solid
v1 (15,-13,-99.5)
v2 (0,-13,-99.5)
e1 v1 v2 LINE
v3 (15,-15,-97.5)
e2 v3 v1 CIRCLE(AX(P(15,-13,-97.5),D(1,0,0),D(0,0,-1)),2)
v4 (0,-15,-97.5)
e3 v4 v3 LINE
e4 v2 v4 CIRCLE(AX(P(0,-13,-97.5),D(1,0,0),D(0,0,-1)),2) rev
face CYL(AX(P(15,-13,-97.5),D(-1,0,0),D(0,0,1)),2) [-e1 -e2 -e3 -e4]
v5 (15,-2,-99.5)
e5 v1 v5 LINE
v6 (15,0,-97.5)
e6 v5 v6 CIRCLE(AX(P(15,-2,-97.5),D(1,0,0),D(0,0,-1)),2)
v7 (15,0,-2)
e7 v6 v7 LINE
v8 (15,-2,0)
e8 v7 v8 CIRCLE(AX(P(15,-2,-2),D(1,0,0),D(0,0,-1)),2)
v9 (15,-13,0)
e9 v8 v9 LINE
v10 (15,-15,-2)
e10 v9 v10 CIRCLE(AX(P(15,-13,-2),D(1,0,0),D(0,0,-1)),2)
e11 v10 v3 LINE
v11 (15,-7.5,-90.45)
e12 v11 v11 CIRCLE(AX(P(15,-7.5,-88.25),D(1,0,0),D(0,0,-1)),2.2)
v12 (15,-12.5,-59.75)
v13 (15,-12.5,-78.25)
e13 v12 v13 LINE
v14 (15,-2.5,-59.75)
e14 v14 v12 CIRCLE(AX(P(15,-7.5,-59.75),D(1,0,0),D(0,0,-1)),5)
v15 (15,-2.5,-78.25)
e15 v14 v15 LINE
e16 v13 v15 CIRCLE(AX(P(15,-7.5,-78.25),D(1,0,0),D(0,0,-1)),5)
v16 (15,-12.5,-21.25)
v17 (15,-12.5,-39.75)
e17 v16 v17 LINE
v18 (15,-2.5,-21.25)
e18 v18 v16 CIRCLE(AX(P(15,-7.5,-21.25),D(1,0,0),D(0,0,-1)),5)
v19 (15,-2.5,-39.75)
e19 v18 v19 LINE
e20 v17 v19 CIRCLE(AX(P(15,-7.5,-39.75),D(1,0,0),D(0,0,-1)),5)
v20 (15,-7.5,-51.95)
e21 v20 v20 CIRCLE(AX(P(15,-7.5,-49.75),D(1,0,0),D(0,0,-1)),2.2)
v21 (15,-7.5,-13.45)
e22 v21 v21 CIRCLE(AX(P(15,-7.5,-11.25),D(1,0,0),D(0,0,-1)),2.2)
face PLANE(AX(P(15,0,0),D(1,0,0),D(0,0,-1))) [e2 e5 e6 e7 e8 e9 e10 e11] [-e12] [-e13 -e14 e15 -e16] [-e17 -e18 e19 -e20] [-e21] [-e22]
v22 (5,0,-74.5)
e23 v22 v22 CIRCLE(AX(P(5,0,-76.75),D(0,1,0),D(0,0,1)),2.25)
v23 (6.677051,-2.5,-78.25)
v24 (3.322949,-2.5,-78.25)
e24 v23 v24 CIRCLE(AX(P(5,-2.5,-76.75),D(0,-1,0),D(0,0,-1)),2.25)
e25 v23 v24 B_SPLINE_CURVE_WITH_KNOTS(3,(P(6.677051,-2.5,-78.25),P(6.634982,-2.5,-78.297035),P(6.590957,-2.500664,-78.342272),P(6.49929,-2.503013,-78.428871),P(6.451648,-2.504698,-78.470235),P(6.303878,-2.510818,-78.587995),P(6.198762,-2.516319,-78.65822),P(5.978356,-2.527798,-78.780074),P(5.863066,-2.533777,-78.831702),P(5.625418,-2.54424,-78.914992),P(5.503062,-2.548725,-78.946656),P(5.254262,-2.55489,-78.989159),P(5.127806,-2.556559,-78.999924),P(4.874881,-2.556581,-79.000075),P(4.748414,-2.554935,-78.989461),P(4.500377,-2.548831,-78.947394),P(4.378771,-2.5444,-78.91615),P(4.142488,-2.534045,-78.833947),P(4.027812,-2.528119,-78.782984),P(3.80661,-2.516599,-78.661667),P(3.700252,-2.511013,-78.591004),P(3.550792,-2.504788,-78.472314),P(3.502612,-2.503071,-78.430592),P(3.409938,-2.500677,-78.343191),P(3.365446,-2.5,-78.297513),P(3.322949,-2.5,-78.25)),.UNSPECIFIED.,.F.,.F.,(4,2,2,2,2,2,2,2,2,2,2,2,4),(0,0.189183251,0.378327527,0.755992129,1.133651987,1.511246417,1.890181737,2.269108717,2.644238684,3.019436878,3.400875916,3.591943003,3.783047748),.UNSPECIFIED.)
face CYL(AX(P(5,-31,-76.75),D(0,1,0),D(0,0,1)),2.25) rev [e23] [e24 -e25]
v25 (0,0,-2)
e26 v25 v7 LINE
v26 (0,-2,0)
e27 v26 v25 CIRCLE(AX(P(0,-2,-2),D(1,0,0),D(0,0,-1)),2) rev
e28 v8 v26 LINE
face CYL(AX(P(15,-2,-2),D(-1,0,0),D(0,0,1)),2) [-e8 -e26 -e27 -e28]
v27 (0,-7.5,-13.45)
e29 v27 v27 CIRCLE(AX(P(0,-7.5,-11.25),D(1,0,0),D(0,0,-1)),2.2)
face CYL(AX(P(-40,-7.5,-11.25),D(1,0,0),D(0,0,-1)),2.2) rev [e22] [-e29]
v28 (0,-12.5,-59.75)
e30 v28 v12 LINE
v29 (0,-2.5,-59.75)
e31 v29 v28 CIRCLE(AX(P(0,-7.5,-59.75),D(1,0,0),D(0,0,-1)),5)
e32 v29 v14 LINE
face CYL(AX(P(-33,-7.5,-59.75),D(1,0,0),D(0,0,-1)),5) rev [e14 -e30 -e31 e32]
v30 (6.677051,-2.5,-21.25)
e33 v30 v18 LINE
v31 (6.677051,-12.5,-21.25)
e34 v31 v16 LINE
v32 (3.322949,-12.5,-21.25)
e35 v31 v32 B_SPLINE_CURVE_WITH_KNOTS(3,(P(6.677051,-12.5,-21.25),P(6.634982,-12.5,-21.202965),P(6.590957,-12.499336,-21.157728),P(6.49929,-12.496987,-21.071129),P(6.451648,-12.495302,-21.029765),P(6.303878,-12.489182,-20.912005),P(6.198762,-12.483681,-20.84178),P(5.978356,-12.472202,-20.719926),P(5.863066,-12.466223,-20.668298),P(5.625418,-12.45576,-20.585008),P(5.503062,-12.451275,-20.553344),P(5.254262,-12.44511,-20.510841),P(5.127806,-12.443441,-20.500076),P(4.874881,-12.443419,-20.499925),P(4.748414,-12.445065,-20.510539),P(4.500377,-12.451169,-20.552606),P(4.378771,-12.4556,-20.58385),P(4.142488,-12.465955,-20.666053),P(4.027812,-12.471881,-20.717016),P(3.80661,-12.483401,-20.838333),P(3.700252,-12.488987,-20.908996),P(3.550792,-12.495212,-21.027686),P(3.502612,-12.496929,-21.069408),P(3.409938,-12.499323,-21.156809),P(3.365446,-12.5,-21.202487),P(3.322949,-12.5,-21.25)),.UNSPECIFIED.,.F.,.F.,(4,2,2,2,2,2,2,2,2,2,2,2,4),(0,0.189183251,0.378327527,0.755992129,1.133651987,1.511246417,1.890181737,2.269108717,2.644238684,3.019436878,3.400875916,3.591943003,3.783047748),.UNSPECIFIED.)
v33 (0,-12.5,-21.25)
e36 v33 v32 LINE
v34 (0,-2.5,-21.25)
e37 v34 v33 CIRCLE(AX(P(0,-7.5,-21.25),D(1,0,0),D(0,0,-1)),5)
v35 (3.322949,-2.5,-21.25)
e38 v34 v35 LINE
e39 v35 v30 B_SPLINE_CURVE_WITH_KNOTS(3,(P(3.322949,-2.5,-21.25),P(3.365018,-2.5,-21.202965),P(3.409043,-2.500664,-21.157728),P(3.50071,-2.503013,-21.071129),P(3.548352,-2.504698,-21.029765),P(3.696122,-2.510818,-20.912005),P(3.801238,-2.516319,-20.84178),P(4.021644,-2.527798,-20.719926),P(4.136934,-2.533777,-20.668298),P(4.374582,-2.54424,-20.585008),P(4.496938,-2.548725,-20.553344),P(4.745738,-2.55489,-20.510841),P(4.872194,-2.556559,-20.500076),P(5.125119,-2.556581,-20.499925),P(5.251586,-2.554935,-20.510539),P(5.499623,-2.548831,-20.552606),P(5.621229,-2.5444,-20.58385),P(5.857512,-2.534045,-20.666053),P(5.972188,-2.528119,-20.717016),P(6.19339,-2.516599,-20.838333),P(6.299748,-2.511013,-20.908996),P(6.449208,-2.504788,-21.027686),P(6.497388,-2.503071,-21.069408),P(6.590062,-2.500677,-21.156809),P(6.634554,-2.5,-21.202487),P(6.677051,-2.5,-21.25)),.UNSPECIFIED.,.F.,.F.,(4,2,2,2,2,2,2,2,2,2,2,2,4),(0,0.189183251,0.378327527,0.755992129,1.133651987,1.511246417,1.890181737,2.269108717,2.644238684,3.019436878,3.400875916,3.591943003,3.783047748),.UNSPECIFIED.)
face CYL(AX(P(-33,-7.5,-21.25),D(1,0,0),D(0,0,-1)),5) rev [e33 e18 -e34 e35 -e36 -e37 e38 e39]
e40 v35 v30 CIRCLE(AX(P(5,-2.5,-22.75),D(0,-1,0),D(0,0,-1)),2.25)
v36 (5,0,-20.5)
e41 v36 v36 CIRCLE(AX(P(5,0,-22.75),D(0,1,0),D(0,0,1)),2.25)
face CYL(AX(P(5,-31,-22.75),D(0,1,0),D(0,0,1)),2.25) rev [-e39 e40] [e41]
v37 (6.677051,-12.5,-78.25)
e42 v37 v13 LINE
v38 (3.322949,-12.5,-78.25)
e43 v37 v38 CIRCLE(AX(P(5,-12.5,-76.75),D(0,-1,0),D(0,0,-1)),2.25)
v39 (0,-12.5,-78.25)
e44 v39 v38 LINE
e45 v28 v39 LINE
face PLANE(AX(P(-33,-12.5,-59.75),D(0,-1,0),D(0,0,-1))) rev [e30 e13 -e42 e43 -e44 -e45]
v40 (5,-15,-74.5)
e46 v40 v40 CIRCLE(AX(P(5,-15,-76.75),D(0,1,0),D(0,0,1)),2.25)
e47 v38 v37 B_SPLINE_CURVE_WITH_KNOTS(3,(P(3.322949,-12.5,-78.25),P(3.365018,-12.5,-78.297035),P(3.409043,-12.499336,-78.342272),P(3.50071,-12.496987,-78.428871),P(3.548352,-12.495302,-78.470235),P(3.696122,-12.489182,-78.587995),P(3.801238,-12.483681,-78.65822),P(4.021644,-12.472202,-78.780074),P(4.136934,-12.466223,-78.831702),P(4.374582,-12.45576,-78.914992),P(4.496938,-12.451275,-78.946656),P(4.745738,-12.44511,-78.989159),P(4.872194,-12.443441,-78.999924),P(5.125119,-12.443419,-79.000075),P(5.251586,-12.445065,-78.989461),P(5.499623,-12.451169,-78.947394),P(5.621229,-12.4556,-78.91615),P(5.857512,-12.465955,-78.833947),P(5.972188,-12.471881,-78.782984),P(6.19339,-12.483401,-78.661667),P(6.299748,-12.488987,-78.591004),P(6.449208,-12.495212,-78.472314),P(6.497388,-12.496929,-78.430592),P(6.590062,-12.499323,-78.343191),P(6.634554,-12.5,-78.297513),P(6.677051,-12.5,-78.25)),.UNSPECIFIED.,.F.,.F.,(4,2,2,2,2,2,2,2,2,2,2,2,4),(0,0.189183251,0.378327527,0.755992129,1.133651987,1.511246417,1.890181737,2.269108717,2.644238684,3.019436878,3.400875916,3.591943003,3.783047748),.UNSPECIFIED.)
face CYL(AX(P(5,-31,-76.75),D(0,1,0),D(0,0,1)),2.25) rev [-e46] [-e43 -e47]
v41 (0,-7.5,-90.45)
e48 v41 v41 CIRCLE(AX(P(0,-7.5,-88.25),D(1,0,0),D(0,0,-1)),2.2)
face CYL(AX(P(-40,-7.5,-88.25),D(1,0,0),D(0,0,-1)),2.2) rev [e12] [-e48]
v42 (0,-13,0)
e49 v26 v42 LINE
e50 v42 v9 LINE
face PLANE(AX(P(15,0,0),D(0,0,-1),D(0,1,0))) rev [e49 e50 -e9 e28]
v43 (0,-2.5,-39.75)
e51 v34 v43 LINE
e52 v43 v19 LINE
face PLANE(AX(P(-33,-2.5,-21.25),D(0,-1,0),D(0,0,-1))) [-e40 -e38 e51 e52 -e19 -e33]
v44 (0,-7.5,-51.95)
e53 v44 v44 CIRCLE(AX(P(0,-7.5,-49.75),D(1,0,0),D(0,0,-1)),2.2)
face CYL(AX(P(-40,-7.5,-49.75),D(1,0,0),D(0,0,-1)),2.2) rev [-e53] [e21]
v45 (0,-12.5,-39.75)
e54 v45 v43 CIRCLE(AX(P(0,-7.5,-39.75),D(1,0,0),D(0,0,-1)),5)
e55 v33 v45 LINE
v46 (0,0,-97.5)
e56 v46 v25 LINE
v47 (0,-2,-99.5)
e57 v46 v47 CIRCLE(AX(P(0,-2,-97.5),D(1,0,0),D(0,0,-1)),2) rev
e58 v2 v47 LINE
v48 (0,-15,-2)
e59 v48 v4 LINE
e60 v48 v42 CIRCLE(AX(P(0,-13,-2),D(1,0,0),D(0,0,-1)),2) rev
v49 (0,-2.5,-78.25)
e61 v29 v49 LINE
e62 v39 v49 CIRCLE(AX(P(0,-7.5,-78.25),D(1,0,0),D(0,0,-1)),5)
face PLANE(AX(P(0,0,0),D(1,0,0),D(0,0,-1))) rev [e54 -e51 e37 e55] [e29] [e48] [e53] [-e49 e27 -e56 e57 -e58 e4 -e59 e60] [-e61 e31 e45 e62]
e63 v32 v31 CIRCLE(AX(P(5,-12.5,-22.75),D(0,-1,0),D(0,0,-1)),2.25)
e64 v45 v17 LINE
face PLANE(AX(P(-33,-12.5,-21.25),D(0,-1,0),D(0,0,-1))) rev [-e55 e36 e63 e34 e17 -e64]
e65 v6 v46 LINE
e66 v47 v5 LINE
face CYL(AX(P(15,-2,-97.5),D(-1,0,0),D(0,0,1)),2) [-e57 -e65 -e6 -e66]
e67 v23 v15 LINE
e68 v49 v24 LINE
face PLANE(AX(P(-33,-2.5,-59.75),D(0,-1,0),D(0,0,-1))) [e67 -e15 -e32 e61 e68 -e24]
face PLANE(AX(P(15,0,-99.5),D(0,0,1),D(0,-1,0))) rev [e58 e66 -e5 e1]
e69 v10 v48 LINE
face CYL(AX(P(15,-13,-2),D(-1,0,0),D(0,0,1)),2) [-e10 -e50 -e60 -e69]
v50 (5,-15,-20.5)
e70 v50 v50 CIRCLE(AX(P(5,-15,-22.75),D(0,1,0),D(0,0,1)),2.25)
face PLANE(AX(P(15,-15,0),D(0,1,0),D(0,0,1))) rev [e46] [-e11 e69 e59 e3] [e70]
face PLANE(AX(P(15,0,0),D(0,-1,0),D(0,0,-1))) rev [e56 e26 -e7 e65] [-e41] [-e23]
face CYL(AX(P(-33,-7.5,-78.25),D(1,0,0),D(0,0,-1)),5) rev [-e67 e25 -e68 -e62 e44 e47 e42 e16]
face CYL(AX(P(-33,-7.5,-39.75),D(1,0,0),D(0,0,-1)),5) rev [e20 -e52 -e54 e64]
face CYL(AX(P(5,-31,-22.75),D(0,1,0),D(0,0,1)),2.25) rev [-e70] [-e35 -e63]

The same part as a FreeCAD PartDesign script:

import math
import FreeCAD as App
import Part
import Sketcher
from FreeCAD import Vector
Q = App.Units.Quantity


def edges_at(feature, points):
    """Names of the edges that pass closest to the given points."""
    edges = feature.Shape.Edges
    near = lambda p: min(range(len(edges)), key=lambda i: edges[i].distToShape(Part.Vertex(*p))[0])
    return sorted({f"Edge{near(p) + 1}" for p in points})

doc = App.newDocument("Part")
params = doc.addObject("Spreadsheet::Sheet", "Params")
for row, (alias, value) in enumerate([
    ("sketch1_width", "15 mm"),
    ("sketch1_height", "99.5 mm"),
    ("pad1_length", "15 mm"),
    ("sketch2_diameter", "4.4 mm"),
    ("pocket1_length", "55 mm"),
    ("sketch3_radius", "5 mm"),
    ("sketch3_height", "18.5 mm"),
    ("pocket2_length", "48 mm"),
    ("fillet_radius", "2 mm"),
    ("sketch4_radius", "2.25 mm"),
    ("pocket3_length", "31 mm"),
], start=1):
    params.set(f"A{row}", alias)
    params.set(f"B{row}", "=" + value)
    params.setAlias(f"B{row}", alias)

body = doc.addObject("PartDesign::Body", "Body")

# Sketch on YZ plane
sketch1 = doc.addObject("Sketcher::SketchObject", "Sketch")
body.addObject(sketch1)
sketch1.AttachmentSupport = (doc.YZ_Plane, [""])
sketch1.MapMode = "FlatFace"
sketch1.addGeometry(Part.LineSegment(Vector(0, 0, 0), Vector(-15, 0, 0)), False)
sketch1.addGeometry(Part.LineSegment(Vector(-15, 0, 0), Vector(-15, -100, 0)), False)
sketch1.addGeometry(Part.LineSegment(Vector(-15, -100, 0), Vector(0, -100, 0)), False)
sketch1.addGeometry(Part.LineSegment(Vector(0, -100, 0), Vector(0, 0, 0)), False)
sketch1.addConstraint(Sketcher.Constraint("Coincident", 0, 2, 1, 1))
sketch1.addConstraint(Sketcher.Constraint("Coincident", 1, 2, 2, 1))
sketch1.addConstraint(Sketcher.Constraint("Coincident", 2, 2, 3, 1))
sketch1.addConstraint(Sketcher.Constraint("Coincident", 3, 2, 0, 1))
sketch1.addConstraint(Sketcher.Constraint("Horizontal", 0))
sketch1.addConstraint(Sketcher.Constraint("Vertical", 1))
sketch1.addConstraint(Sketcher.Constraint("Horizontal", 2))
sketch1.addConstraint(Sketcher.Constraint("Vertical", 3))
sketch1.addConstraint(Sketcher.Constraint("Coincident", 3, 2, -1, 1))
sketch1.addConstraint(Sketcher.Constraint("DistanceX", 0, 2, 0, 1, Q("15 mm")))
sketch1.addConstraint(Sketcher.Constraint("DistanceY", 1, 2, 1, 1, Q("99.5 mm")))
sketch1.setExpression("Constraints[9]", "Params.sketch1_width")
sketch1.setExpression("Constraints[10]", "Params.sketch1_height")
pad1 = doc.addObject("PartDesign::Pad", "Pad")
body.addObject(pad1)
pad1.Profile = sketch1
pad1.setExpression("Length", "Params.pad1_length")

# Sketch on YZ plane
sketch2 = doc.addObject("Sketcher::SketchObject", "Sketch001")
body.addObject(sketch2)
sketch2.AttachmentSupport = (doc.YZ_Plane, [""])
sketch2.MapMode = "FlatFace"
sketch2.AttachmentOffset = App.Placement(Vector(0, 0, 15), App.Rotation())
sketch2.addGeometry(Part.Circle(Vector(-7.5, -49.8, 0), Vector(0, 0, 1), 2.2), False)
sketch2.addGeometry(Part.Circle(Vector(-7.5, -11.2, 0), Vector(0, 0, 1), 2.2), False)
sketch2.addGeometry(Part.Circle(Vector(-7.5, -88.2, 0), Vector(0, 0, 1), 2.2), False)
sketch2.addConstraint(Sketcher.Constraint("Equal", 0, 1))
sketch2.addConstraint(Sketcher.Constraint("Equal", 1, 2))
sketch2.addConstraint(Sketcher.Constraint("Vertical", 0, 3, 1, 3))
sketch2.addConstraint(Sketcher.Constraint("Vertical", 1, 3, 2, 3))
sketch2.addConstraint(Sketcher.Constraint("Diameter", 0, Q("4.4 mm")))
sketch2.addConstraint(Sketcher.Constraint("DistanceY", 2, 3, 1, 3, Q("77 mm")))
sketch2.addConstraint(Sketcher.Constraint("DistanceX", 0, 3, -1, 1, Q("7.5 mm")))
sketch2.addConstraint(Sketcher.Constraint("DistanceY", 0, 3, 1, 3, Q("38.5 mm")))
sketch2.addConstraint(Sketcher.Constraint("DistanceY", 0, 3, -1, 1, Q("49.75 mm")))
sketch2.setExpression("Constraints[4]", "Params.sketch2_diameter")
pocket1 = doc.addObject("PartDesign::Pocket", "Pocket")
body.addObject(pocket1)
pocket1.Profile = sketch2
pocket1.setExpression("Length", "Params.pocket1_length")

# Sketch on YZ plane
sketch3 = doc.addObject("Sketcher::SketchObject", "Sketch002")
body.addObject(sketch3)
sketch3.AttachmentSupport = (doc.YZ_Plane, [""])
sketch3.MapMode = "FlatFace"
sketch3.AttachmentOffset = App.Placement(Vector(0, 0, 15), App.Rotation())
sketch3.addGeometry(Part.LineSegment(Vector(-2, -40, 0), Vector(-2, -21, 0)), False)
sketch3.addGeometry(Part.ArcOfCircle(Part.Circle(Vector(-8, -21, 0), Vector(0, 0, 1), 5), math.radians(0), math.radians(180)), False)
sketch3.addGeometry(Part.LineSegment(Vector(-12, -21, 0), Vector(-12, -40, 0)), False)
sketch3.addGeometry(Part.ArcOfCircle(Part.Circle(Vector(-8, -40, 0), Vector(0, 0, 1), 5), math.radians(180), math.radians(360)), False)
sketch3.addGeometry(Part.LineSegment(Vector(-2, -78, 0), Vector(-2, -60, 0)), False)
sketch3.addGeometry(Part.ArcOfCircle(Part.Circle(Vector(-8, -60, 0), Vector(0, 0, 1), 5), math.radians(0), math.radians(180)), False)
sketch3.addGeometry(Part.LineSegment(Vector(-12, -60, 0), Vector(-12, -78, 0)), False)
sketch3.addGeometry(Part.ArcOfCircle(Part.Circle(Vector(-8, -78, 0), Vector(0, 0, 1), 5), math.radians(180), math.radians(360)), False)
sketch3.addConstraint(Sketcher.Constraint("Tangent", 0, 2, 1, 1))
sketch3.addConstraint(Sketcher.Constraint("Tangent", 1, 2, 2, 1))
sketch3.addConstraint(Sketcher.Constraint("Tangent", 2, 2, 3, 1))
sketch3.addConstraint(Sketcher.Constraint("Tangent", 3, 2, 0, 1))
sketch3.addConstraint(Sketcher.Constraint("Tangent", 4, 2, 5, 1))
sketch3.addConstraint(Sketcher.Constraint("Tangent", 5, 2, 6, 1))
sketch3.addConstraint(Sketcher.Constraint("Tangent", 6, 2, 7, 1))
sketch3.addConstraint(Sketcher.Constraint("Tangent", 7, 2, 4, 1))
sketch3.addConstraint(Sketcher.Constraint("Vertical", 0))
sketch3.addConstraint(Sketcher.Constraint("Vertical", 2))
sketch3.addConstraint(Sketcher.Constraint("Vertical", 4))
sketch3.addConstraint(Sketcher.Constraint("Vertical", 6))
sketch3.addConstraint(Sketcher.Constraint("Equal", 3, 5))
sketch3.addConstraint(Sketcher.Constraint("Vertical", 3, 3, 5, 3))
sketch3.addConstraint(Sketcher.Constraint("Equal", 2, 4))
sketch3.addConstraint(Sketcher.Constraint("Radius", 1, Q("5 mm")))
sketch3.addConstraint(Sketcher.Constraint("DistanceY", 0, 1, 0, 2, Q("18.5 mm")))
sketch3.addConstraint(Sketcher.Constraint("DistanceY", 5, 3, 3, 3, Q("20 mm")))
sketch3.addConstraint(Sketcher.Constraint("DistanceX", 1, 3, -1, 1, Q("7.5 mm")))
sketch3.addConstraint(Sketcher.Constraint("DistanceY", 1, 3, -1, 1, Q("21.25 mm")))
sketch3.setExpression("Constraints[15]", "Params.sketch3_radius")
sketch3.setExpression("Constraints[16]", "Params.sketch3_height")
pocket2 = doc.addObject("PartDesign::Pocket", "Pocket001")
body.addObject(pocket2)
pocket2.Profile = sketch3
pocket2.setExpression("Length", "Params.pocket2_length")
doc.recompute()

fillet = doc.addObject("PartDesign::Fillet", "Fillet")
body.addObject(fillet)
fillet.Base = (pocket2, edges_at(pocket2, [
    (7.5, 0, 0),
    (7.5, 0, -99.5),
    (7.5, -15, -99.5),
    (7.5, -15, 0),
]))
fillet.setExpression("Radius", "Params.fillet_radius")

# Sketch on XZ plane
sketch4 = doc.addObject("Sketcher::SketchObject", "Sketch003")
body.addObject(sketch4)
sketch4.AttachmentSupport = (doc.XZ_Plane, [""])
sketch4.MapMode = "FlatFace"
sketch4.addGeometry(Part.ArcOfCircle(Part.Circle(Vector(5, -22.8, 0), Vector(0, 0, 1), 2.2), math.radians(-90), math.radians(0)), False)
sketch4.addGeometry(Part.ArcOfCircle(Part.Circle(Vector(5, -22.8, 0), Vector(0, 0, 1), 2.2), math.radians(90), math.radians(270)), False)
sketch4.addGeometry(Part.ArcOfCircle(Part.Circle(Vector(5, -22.7, 0), Vector(0, 0, 1), 2.2), math.radians(0), math.radians(90)), False)
sketch4.addGeometry(Part.ArcOfCircle(Part.Circle(Vector(5, -76.8, 0), Vector(0, 0, 1), 2.2), math.radians(-90), math.radians(0)), False)
sketch4.addGeometry(Part.ArcOfCircle(Part.Circle(Vector(5, -76.8, 0), Vector(0, 0, 1), 2.2), math.radians(90), math.radians(270)), False)
sketch4.addGeometry(Part.ArcOfCircle(Part.Circle(Vector(5, -76.7, 0), Vector(0, 0, 1), 2.2), math.radians(0), math.radians(90)), False)
sketch4.addConstraint(Sketcher.Constraint("Tangent", 0, 1, 1, 2))
sketch4.addConstraint(Sketcher.Constraint("Tangent", 1, 1, 2, 2))
sketch4.addConstraint(Sketcher.Constraint("Tangent", 2, 1, 0, 2))
sketch4.addConstraint(Sketcher.Constraint("Tangent", 3, 1, 4, 2))
sketch4.addConstraint(Sketcher.Constraint("Tangent", 4, 1, 5, 2))
sketch4.addConstraint(Sketcher.Constraint("Tangent", 5, 1, 3, 2))
sketch4.addConstraint(Sketcher.Constraint("Equal", 2, 3))
sketch4.addConstraint(Sketcher.Constraint("Horizontal", 1, 3, 2, 1))
sketch4.addConstraint(Sketcher.Constraint("Horizontal", 4, 3, 5, 1))
sketch4.addConstraint(Sketcher.Constraint("Vertical", 2, 3, 3, 3))
sketch4.addConstraint(Sketcher.Constraint("Vertical", 5, 3, 0, 1))
sketch4.addConstraint(Sketcher.Constraint("Vertical", 0, 1, 1, 1))
sketch4.addConstraint(Sketcher.Constraint("Vertical", 1, 1, 3, 1))
sketch4.addConstraint(Sketcher.Constraint("Vertical", 3, 1, 4, 1))
sketch4.addConstraint(Sketcher.Constraint("Radius", 0, Q("2.25 mm")))
sketch4.addConstraint(Sketcher.Constraint("DistanceX", -1, 1, 0, 3, Q("5 mm")))
sketch4.addConstraint(Sketcher.Constraint("DistanceY", 0, 1, -1, 1, Q("25 mm")))
sketch4.addConstraint(Sketcher.Constraint("DistanceY", 3, 1, -1, 1, Q("79 mm")))
sketch4.setExpression("Constraints[14]", "Params.sketch4_radius")
pocket3 = doc.addObject("PartDesign::Pocket", "Pocket002")
body.addObject(pocket3)
pocket3.Profile = sketch4
pocket3.setExpression("Length", "Params.pocket3_length")
pocket3.Reversed = True

doc.recompute()
